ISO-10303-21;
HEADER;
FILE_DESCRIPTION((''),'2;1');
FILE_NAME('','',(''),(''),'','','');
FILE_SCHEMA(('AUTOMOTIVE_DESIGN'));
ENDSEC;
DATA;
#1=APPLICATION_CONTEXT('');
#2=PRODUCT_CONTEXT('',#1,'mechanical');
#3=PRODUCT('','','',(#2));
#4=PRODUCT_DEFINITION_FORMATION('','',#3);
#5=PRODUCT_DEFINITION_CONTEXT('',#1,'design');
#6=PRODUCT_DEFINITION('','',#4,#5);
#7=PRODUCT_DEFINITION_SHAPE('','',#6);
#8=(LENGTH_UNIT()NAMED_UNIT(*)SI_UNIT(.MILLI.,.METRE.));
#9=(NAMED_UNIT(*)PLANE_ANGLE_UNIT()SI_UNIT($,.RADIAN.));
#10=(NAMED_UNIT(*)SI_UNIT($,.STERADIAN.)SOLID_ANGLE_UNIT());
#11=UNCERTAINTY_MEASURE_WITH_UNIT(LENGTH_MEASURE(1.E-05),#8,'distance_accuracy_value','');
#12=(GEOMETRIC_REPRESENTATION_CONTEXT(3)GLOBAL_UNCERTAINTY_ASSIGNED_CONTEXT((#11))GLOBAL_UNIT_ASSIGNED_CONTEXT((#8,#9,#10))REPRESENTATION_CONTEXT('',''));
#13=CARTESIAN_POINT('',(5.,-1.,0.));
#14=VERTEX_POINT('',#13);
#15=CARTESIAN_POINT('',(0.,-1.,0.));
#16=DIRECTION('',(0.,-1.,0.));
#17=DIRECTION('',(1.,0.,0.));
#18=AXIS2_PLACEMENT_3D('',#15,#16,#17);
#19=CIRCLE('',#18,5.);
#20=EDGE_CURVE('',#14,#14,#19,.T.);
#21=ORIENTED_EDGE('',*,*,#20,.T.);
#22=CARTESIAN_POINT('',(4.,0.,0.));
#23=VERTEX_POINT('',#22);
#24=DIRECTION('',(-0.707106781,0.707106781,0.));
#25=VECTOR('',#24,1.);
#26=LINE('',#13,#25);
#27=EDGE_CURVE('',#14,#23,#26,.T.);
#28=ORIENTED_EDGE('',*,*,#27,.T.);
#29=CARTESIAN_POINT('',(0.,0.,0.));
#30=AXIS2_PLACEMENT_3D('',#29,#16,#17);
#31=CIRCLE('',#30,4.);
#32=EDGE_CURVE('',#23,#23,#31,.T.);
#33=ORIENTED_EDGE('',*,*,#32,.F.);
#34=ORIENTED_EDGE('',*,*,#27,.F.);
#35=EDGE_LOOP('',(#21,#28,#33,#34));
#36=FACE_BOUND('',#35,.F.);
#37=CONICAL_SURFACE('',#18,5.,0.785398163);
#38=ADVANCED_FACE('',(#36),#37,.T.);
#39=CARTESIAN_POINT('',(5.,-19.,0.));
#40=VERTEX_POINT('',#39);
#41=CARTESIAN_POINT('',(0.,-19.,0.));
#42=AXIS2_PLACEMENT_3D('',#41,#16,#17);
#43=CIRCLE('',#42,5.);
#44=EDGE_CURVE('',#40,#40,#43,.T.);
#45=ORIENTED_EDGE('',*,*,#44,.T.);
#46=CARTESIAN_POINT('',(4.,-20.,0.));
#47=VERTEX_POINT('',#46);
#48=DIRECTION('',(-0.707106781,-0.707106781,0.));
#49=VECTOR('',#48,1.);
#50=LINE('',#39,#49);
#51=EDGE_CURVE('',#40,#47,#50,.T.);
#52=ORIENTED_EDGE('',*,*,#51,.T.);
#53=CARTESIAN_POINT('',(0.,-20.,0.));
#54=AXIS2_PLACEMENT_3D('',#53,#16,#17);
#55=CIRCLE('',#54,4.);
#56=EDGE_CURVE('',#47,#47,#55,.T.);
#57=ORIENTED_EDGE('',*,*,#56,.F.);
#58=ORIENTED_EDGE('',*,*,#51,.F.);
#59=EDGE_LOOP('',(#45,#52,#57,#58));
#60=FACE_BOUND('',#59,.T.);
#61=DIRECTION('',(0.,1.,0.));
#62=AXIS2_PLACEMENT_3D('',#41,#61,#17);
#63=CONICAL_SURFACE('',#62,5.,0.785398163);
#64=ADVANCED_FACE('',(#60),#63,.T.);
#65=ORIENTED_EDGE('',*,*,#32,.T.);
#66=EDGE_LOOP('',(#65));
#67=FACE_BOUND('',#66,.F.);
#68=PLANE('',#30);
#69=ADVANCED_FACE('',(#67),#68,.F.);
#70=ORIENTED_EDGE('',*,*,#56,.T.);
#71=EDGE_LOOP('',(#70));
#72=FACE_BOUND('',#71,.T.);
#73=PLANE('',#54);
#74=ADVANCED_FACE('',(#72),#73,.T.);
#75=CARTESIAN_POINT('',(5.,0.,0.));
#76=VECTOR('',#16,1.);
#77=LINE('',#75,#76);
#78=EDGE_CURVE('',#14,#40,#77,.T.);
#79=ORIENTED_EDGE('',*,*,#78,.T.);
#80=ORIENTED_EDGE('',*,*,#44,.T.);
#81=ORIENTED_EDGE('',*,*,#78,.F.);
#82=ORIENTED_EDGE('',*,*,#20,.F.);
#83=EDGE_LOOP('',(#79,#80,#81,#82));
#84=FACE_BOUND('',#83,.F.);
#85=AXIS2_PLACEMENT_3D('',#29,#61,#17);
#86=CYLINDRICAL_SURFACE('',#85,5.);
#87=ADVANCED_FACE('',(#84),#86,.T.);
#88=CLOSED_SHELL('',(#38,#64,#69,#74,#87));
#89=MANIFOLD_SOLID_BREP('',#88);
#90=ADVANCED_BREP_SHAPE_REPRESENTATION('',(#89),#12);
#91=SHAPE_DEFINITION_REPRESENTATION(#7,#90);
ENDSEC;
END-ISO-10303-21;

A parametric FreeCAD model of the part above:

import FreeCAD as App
import Part
import Sketcher


def edges_at(feature, points):
    """Names of the edges that pass closest to the given points."""
    edges = feature.Shape.Edges
    near = lambda p: min(range(len(edges)), key=lambda i: edges[i].distToShape(Part.Vertex(*p))[0])
    return sorted({f"Edge{near(p) + 1}" for p in points})

doc = App.newDocument("Part")
body = doc.addObject("PartDesign::Body", "Body")

# Sketch on XZ plane
sketch1 = doc.addObject("Sketcher::SketchObject", "Sketch")
body.addObject(sketch1)
sketch1.AttachmentSupport = (doc.XZ_Plane, [""])
sketch1.MapMode = "FlatFace"
sketch1.addGeometry(Part.Circle(App.Vector(0, 0, 0), App.Vector(0, 0, 1), 5), False)
sketch1.addConstraint([
    Sketcher.Constraint("Coincident", 0, 3, -1, 1),
    Sketcher.Constraint("Diameter", 0, 10.0),
])
pad1 = doc.addObject("PartDesign::Pad", "Pad")
body.addObject(pad1)
pad1.Profile = sketch1
pad1.Length = 20
doc.recompute()

chamfer = doc.addObject("PartDesign::Chamfer", "Chamfer")
body.addObject(chamfer)
chamfer.Base = (pad1, edges_at(pad1, [(-5, 0, 0)]))
chamfer.Size = 1
doc.recompute()

chamfer2 = doc.addObject("PartDesign::Chamfer", "Chamfer001")
body.addObject(chamfer2)
chamfer2.Base = (chamfer, edges_at(chamfer, [(-5, -20, 0)]))
chamfer2.Size = 1

doc.recompute()
